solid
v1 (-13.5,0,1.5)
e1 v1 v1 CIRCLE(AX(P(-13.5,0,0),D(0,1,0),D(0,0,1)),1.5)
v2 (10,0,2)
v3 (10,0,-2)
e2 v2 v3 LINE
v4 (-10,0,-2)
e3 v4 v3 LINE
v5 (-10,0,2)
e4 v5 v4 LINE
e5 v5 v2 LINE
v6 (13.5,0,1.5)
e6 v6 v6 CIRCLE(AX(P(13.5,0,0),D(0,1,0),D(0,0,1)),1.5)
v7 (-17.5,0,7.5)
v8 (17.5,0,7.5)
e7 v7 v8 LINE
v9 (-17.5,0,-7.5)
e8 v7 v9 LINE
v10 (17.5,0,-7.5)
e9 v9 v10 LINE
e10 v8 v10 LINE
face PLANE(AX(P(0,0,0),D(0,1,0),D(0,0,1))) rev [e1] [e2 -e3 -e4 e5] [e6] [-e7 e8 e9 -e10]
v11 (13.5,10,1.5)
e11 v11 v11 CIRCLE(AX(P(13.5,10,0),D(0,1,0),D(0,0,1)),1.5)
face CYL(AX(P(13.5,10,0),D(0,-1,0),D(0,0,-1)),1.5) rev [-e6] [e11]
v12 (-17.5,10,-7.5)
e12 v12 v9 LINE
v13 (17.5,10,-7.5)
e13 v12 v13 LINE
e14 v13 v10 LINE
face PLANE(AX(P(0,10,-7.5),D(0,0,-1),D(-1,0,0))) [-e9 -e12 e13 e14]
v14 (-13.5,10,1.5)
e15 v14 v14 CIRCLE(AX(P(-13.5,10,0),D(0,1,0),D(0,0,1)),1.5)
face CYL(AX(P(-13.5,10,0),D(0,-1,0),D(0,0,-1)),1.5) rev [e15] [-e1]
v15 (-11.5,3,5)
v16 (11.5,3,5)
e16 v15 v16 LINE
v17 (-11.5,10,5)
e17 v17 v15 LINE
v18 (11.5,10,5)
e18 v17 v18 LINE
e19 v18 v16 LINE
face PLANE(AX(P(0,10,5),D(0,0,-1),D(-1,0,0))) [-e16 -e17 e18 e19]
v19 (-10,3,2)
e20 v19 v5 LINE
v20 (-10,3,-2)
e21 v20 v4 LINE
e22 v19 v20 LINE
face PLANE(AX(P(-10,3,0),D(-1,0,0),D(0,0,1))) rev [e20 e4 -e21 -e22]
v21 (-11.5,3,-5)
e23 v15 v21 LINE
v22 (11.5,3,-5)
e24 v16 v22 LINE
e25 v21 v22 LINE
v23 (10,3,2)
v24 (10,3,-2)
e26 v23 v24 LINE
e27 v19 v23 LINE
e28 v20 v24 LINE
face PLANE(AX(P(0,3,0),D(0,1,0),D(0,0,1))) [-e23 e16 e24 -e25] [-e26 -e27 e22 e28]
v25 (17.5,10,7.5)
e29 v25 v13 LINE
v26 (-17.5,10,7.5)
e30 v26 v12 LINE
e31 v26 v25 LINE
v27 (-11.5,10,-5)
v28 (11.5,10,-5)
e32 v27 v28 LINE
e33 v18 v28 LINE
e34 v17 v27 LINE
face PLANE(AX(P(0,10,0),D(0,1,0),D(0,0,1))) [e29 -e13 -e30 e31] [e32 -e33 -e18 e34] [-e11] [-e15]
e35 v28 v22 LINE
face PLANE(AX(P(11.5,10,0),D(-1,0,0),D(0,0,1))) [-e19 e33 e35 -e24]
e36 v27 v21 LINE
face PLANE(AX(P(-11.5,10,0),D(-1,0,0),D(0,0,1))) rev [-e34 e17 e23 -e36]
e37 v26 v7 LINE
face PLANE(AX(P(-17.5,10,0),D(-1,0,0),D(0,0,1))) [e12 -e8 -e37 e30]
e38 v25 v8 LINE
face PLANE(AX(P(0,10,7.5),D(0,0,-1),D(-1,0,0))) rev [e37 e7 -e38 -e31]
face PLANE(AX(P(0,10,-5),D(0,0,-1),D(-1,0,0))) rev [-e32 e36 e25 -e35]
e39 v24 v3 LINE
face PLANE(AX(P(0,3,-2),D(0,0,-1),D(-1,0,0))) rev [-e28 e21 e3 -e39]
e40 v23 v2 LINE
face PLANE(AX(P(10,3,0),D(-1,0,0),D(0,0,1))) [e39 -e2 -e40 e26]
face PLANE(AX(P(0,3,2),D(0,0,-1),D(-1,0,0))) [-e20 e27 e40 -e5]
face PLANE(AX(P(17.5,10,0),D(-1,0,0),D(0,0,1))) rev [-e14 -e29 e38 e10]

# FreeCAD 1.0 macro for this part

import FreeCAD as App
import Part
import Sketcher

V = App.Vector


def add_polygon(sketch, points):
    """Adds a closed chain of lines whose ends are joined by coincident constraints."""
    first, n = sketch.GeometryCount, len(points)
    for a, b in zip(points, points[1:] + points[:1]):
        sketch.addGeometry(Part.LineSegment(App.Vector(*a, 0), App.Vector(*b, 0)), False)
    for i in range(n):
        sketch.addConstraint(Sketcher.Constraint("Coincident", first + i, 2, first + (i + 1) % n, 1))

doc = App.newDocument("Part")
params = doc.addObject("Spreadsheet::Sheet", "Params")
for row, (alias, value) in enumerate([
    ("sketch1_diameter", "3 mm"),
    ("sketch1_width", "35 mm"),
    ("sketch1_width2", "23 mm"),
    ("sketch1_height", "15 mm"),
    ("sketch1_height2", "10 mm"),
    ("pad1_length", "10 mm"),
    ("sketch2_width", "23 mm"),
    ("sketch2_width2", "20 mm"),
    ("sketch2_height", "10 mm"),
    ("sketch2_height2", "4 mm"),
    ("pad2_length", "3 mm"),
], start=1):
    params.set(f"A{row}", alias)
    params.set(f"B{row}", "=" + value)
    params.setAlias(f"B{row}", alias)

body = doc.addObject("PartDesign::Body", "Body")

sketch1 = body.newObject("Sketcher::SketchObject", "Sketch")
sketch1.AttachmentSupport = (doc.getObject("XZ_Plane"), [""])
sketch1.MapMode = "FlatFace"
add_polygon(sketch1, [(-17.5, -7.5), (-17.5, 7.5), (17.5, 7.5), (17.5, -7.5)])
sketch1.addGeometry(Part.Circle(V(-13.5, 0, 0), V(0, 0, 1), 1.5), False)
add_polygon(sketch1, [(11.5, 5), (-11.5, 5), (-11.5, -5), (11.5, -5)])
sketch1.addGeometry(Part.Circle(V(13.5, 0, 0), V(0, 0, 1), 1.5), False)
sketch1.addConstraint(Sketcher.Constraint("Vertical", 0))
sketch1.addConstraint(Sketcher.Constraint("Horizontal", 1))
sketch1.addConstraint(Sketcher.Constraint("Vertical", 2))
sketch1.addConstraint(Sketcher.Constraint("Horizontal", 3))
sketch1.addConstraint(Sketcher.Constraint("Horizontal", 5))
sketch1.addConstraint(Sketcher.Constraint("Vertical", 6))
sketch1.addConstraint(Sketcher.Constraint("Horizontal", 7))
sketch1.addConstraint(Sketcher.Constraint("Vertical", 8))
sketch1.addConstraint(Sketcher.Constraint("Equal", 4, 9))
sketch1.addConstraint(Sketcher.Constraint("Symmetric", 4, 3, 9, 3, -1, 1))
sketch1.addConstraint(Sketcher.Constraint("Symmetric", 0, 2, 2, 2, -1, 1))
sketch1.addConstraint(Sketcher.Constraint("Symmetric", 5, 2, 7, 2, -1, 1))
sketch1.addConstraint(Sketcher.Constraint("PointOnObject", 4, 3, -1))
sketch1.addConstraint(Sketcher.Constraint("Diameter", 4, 3.0))
sketch1.addConstraint(Sketcher.Constraint("DistanceX", 1, 1, 1, 2, 35.0))
sketch1.addConstraint(Sketcher.Constraint("DistanceX", 5, 2, 5, 1, 23.0))
sketch1.addConstraint(Sketcher.Constraint("DistanceY", 0, 1, 0, 2, 15.0))
sketch1.addConstraint(Sketcher.Constraint("DistanceY", 6, 2, 6, 1, 10.0))
sketch1.addConstraint(Sketcher.Constraint("DistanceX", 4, 3, 9, 3, 27.0))
sketch1.setExpression("Constraints[21]", "Params.sketch1_diameter")
sketch1.setExpression("Constraints[22]", "Params.sketch1_width")
sketch1.setExpression("Constraints[23]", "Params.sketch1_width2")
sketch1.setExpression("Constraints[24]", "Params.sketch1_height")
sketch1.setExpression("Constraints[25]", "Params.sketch1_height2")
pad1 = body.newObject("PartDesign::Pad", "Pad")
pad1.Profile = sketch1
pad1.setExpression("Length", "Params.pad1_length")
pad1.Reversed = True

sketch2 = body.newObject("Sketcher::SketchObject", "Sketch001")
sketch2.AttachmentSupport = (doc.getObject("XZ_Plane"), [""])
sketch2.MapMode = "FlatFace"
add_polygon(sketch2, [(-11.5, -5), (-11.5, 5), (11.5, 5), (11.5, -5)])
add_polygon(sketch2, [(10, 2), (-10, 2), (-10, -2), (10, -2)])
sketch2.addConstraint(Sketcher.Constraint("Vertical", 0))
sketch2.addConstraint(Sketcher.Constraint("Horizontal", 1))
sketch2.addConstraint(Sketcher.Constraint("Vertical", 2))
sketch2.addConstraint(Sketcher.Constraint("Horizontal", 3))
sketch2.addConstraint(Sketcher.Constraint("Horizontal", 4))
sketch2.addConstraint(Sketcher.Constraint("Vertical", 5))
sketch2.addConstraint(Sketcher.Constraint("Horizontal", 6))
sketch2.addConstraint(Sketcher.Constraint("Vertical", 7))
sketch2.addConstraint(Sketcher.Constraint("Symmetric", 0, 2, 2, 2, -1, 1))
sketch2.addConstraint(Sketcher.Constraint("Symmetric", 4, 2, 6, 2, -1, 1))
sketch2.addConstraint(Sketcher.Constraint("DistanceX", 1, 1, 1, 2, 23.0))
sketch2.addConstraint(Sketcher.Constraint("DistanceX", 4, 2, 4, 1, 20.0))
sketch2.addConstraint(Sketcher.Constraint("DistanceY", 0, 1, 0, 2, 10.0))
sketch2.addConstraint(Sketcher.Constraint("DistanceY", 5, 2, 5, 1, 4.0))
sketch2.setExpression("Constraints[18]", "Params.sketch2_width")
sketch2.setExpression("Constraints[19]", "Params.sketch2_width2")
sketch2.setExpression("Constraints[20]", "Params.sketch2_height")
sketch2.setExpression("Constraints[21]", "Params.sketch2_height2")
pad2 = body.newObject("PartDesign::Pad", "Pad001")
pad2.Profile = sketch2
pad2.setExpression("Length", "Params.pad2_length")
pad2.Reversed = True

doc.recompute()
